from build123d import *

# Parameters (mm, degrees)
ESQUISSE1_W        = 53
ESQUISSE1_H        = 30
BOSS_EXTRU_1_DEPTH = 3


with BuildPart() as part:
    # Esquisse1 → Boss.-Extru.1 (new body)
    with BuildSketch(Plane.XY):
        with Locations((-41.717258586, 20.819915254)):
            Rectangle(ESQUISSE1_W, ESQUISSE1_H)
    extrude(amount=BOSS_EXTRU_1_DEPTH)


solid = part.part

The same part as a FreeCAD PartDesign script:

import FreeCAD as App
import Part
import Sketcher
from FreeCAD import Vector


def add_polygon(sketch, points):
    """Adds a closed chain of lines whose ends are joined by coincident constraints."""
    first, n = sketch.GeometryCount, len(points)
    for a, b in zip(points, points[1:] + points[:1]):
        sketch.addGeometry(Part.LineSegment(App.Vector(*a, 0), App.Vector(*b, 0)), False)
    for i in range(n):
        sketch.addConstraint(Sketcher.Constraint("Coincident", first + i, 2, first + (i + 1) % n, 1))

doc = App.newDocument("Part")
body = doc.addObject("PartDesign::Body", "Body")

# Sketch on XY plane
sketch1 = body.newObject("Sketcher::SketchObject", "Sketch")
sketch1.AttachmentSupport = (doc.getObject("XY_Plane"), [""])
sketch1.MapMode = "FlatFace"
add_polygon(sketch1, [(-68.217259, 35.819915), (-68.217259, 5.819915), (-15.217259, 5.819915), (-15.217259, 35.819915)])  # lines 0-3
sketch1.addConstraint([
    Sketcher.Constraint("Vertical", 0),
    Sketcher.Constraint("Horizontal", 1),
    Sketcher.Constraint("Vertical", 2),
    Sketcher.Constraint("Horizontal", 3),
    Sketcher.Constraint("DistanceX", 1, 1, 1, 2, 53.0),
    Sketcher.Constraint("DistanceY", 0, 2, 0, 1, 30.0),
    Sketcher.Constraint("DistanceX", 0, 2, -1, 1, 68.217259),
    Sketcher.Constraint("DistanceY", -1, 1, 0, 2, 5.819915),
])
pad1 = body.newObject("PartDesign::Pad", "Pad")
pad1.Profile = sketch1
pad1.Length = 3

doc.recompute()
